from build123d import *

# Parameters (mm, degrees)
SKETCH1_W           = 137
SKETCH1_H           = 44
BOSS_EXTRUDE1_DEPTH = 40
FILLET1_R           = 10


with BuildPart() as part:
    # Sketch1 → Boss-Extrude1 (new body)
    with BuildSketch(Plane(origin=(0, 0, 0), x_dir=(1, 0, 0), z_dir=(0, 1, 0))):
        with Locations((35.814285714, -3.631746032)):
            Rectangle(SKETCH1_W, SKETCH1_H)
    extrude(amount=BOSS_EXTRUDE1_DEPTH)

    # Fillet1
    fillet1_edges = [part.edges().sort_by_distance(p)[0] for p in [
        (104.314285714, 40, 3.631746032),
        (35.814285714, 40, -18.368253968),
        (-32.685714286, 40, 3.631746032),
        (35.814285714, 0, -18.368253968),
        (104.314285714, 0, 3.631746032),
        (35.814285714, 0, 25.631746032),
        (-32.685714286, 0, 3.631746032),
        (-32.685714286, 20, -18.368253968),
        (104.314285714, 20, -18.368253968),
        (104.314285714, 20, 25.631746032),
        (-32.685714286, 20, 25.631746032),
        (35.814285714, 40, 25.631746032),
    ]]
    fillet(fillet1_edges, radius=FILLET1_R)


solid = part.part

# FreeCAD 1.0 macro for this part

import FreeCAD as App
import Part
import Sketcher

V = App.Vector
Q = App.Units.Quantity

doc = App.newDocument("Part")
body = doc.addObject("PartDesign::Body", "Body")

sketch1 = body.newObject("Sketcher::SketchObject", "Sketch")
sketch1.AttachmentSupport = (doc.getObject("XZ_Plane"), [""])
sketch1.MapMode = "FlatFace"
sketch1.addGeometry([
    Part.LineSegment(V(-33, -18, 0), V(-33, 26, 0)),
    Part.LineSegment(V(-33, 26, 0), V(104, 26, 0)),
    Part.LineSegment(V(104, 26, 0), V(104, -18, 0)),
    Part.LineSegment(V(104, -18, 0), V(-33, -18, 0)),
], False)
sketch1.addConstraint([
    Sketcher.Constraint("Coincident", 0, 2, 1, 1),
    Sketcher.Constraint("Coincident", 1, 2, 2, 1),
    Sketcher.Constraint("Coincident", 2, 2, 3, 1),
    Sketcher.Constraint("Coincident", 3, 2, 0, 1),
    Sketcher.Constraint("Vertical", 0),
    Sketcher.Constraint("Horizontal", 1),
    Sketcher.Constraint("Vertical", 2),
    Sketcher.Constraint("Horizontal", 3),
    Sketcher.Constraint("DistanceX", 1, 1, 1, 2, Q("137 mm")),
    Sketcher.Constraint("DistanceY", 0, 1, 0, 2, Q("44 mm")),
    Sketcher.Constraint("DistanceX", 0, 2, -1, 1, Q("32.685714 mm")),
    Sketcher.Constraint("DistanceY", -1, 1, 0, 2, Q("25.631746 mm")),
])
pad1 = body.newObject("PartDesign::Pad", "Pad")
pad1.Profile = sketch1
pad1.Length = 40
pad1.Reversed = True
doc.recompute()

fillet = body.newObject("PartDesign::Fillet", "Fillet")
fillet.Base = (pad1, ["Edge1"])
fillet.UseAllEdges = True
fillet.Radius = 10

doc.recompute()
